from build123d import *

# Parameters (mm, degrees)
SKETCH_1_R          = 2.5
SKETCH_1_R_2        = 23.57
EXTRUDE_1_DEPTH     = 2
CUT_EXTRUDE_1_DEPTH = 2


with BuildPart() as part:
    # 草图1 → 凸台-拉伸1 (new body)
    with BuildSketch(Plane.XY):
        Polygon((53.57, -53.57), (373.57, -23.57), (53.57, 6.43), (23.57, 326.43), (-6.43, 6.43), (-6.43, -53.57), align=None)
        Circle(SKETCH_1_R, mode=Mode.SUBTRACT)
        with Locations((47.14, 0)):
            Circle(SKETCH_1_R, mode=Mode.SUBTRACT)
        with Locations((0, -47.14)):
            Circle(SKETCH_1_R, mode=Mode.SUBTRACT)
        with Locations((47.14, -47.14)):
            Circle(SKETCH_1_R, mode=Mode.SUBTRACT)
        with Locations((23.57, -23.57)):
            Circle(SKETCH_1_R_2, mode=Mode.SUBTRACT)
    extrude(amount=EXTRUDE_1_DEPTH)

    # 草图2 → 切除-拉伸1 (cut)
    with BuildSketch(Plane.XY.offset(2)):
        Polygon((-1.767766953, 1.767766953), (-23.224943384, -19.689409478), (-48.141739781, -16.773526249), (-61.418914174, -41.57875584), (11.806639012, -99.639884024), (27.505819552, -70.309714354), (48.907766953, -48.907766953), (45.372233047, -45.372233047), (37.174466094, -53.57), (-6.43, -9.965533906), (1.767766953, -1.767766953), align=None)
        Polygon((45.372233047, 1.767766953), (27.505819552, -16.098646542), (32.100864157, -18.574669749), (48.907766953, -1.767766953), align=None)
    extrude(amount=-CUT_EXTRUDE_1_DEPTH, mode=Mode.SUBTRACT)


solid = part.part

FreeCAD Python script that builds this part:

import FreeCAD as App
import Part
import Sketcher

V = App.Vector

doc = App.newDocument("Part")
body = doc.addObject("PartDesign::Body", "Body")

# Sketch on XY plane
sketch1 = doc.addObject("Sketcher::SketchObject", "Sketch")
body.addObject(sketch1)
sketch1.AttachmentSupport = (doc.XY_Plane, [""])
sketch1.MapMode = "FlatFace"
sketch1.addGeometry(Part.LineSegment(V(53.6, -53.6, 0), V(373.6, -23.6, 0)), False)
sketch1.addGeometry(Part.LineSegment(V(373.6, -23.6, 0), V(53.6, 6.4, 0)), False)
sketch1.addGeometry(Part.LineSegment(V(53.6, 6.4, 0), V(23.6, 326.4, 0)), False)
sketch1.addGeometry(Part.LineSegment(V(23.6, 326.4, 0), V(-6.4, 6.4, 0)), False)
sketch1.addGeometry(Part.LineSegment(V(-6.4, 6.4, 0), V(-6.4, -53.6, 0)), False)
sketch1.addGeometry(Part.LineSegment(V(-6.4, -53.6, 0), V(53.6, -53.6, 0)), False)
sketch1.addGeometry(Part.Circle(V(0, -47.1, 0), V(0, 0, 1), 2.5), False)
sketch1.addGeometry(Part.Circle(V(47.1, -47.1, 0), V(0, 0, 1), 2.5), False)
sketch1.addGeometry(Part.Circle(V(0, 0, 0), V(0, 0, 1), 2.5), False)
sketch1.addGeometry(Part.Circle(V(23.6, -23.6, 0), V(0, 0, 1), 23.6), False)
sketch1.addGeometry(Part.Circle(V(47.1, 0, 0), V(0, 0, 1), 2.5), False)
sketch1.addConstraint(Sketcher.Constraint("Coincident", 0, 2, 1, 1))
sketch1.addConstraint(Sketcher.Constraint("Coincident", 1, 2, 2, 1))
sketch1.addConstraint(Sketcher.Constraint("Coincident", 2, 2, 3, 1))
sketch1.addConstraint(Sketcher.Constraint("Coincident", 3, 2, 4, 1))
sketch1.addConstraint(Sketcher.Constraint("Coincident", 4, 2, 5, 1))
sketch1.addConstraint(Sketcher.Constraint("Coincident", 5, 2, 0, 1))
sketch1.addConstraint(Sketcher.Constraint("Vertical", 4))
sketch1.addConstraint(Sketcher.Constraint("Horizontal", 5))
sketch1.addConstraint(Sketcher.Constraint("Coincident", 8, 3, -1, 1))
sketch1.addConstraint(Sketcher.Constraint("Equal", 6, 7))
sketch1.addConstraint(Sketcher.Constraint("Equal", 7, 8))
sketch1.addConstraint(Sketcher.Constraint("Equal", 8, 10))
sketch1.addConstraint(Sketcher.Constraint("PointOnObject", 6, 3, -2))
sketch1.addConstraint(Sketcher.Constraint("PointOnObject", 10, 3, -1))
sketch1.addConstraint(Sketcher.Constraint("Perpendicular", 0, 2))
sketch1.addConstraint(Sketcher.Constraint("Perpendicular", 1, 3))
sketch1.addConstraint(Sketcher.Constraint("Horizontal", 6, 3, 7, 3))
sketch1.addConstraint(Sketcher.Constraint("Horizontal", 9, 3, 0, 2))
sketch1.addConstraint(Sketcher.Constraint("Horizontal", 1, 2, 3, 2))
sketch1.addConstraint(Sketcher.Constraint("Vertical", 7, 3, 10, 3))
sketch1.addConstraint(Sketcher.Constraint("Vertical", 9, 3, 2, 2))
sketch1.addConstraint(Sketcher.Constraint("Vertical", 1, 2, 5, 2))
sketch1.addConstraint(Sketcher.Constraint("Equal", 5, 4))
sketch1.addConstraint(Sketcher.Constraint("Equal", 0, 1))
sketch1.addConstraint(Sketcher.Constraint("Diameter", 6, 5.0))
sketch1.addConstraint(Sketcher.Constraint("Diameter", 9, 47.14))
sketch1.addConstraint(Sketcher.Constraint("DistanceX", 5, 1, 5, 2, 60.0))
sketch1.addConstraint(Sketcher.Constraint("DistanceX", 9, 3, 0, 2, 350.0))
sketch1.addConstraint(Sketcher.Constraint("DistanceY", 6, 3, -1, 1, 47.14))
sketch1.addConstraint(Sketcher.Constraint("DistanceX", -1, 1, 7, 3, 47.14))
sketch1.addConstraint(Sketcher.Constraint("DistanceX", -1, 1, 9, 3, 23.57))
sketch1.addConstraint(Sketcher.Constraint("DistanceY", 9, 3, -1, 1, 23.57))
pad1 = doc.addObject("PartDesign::Pad", "Pad")
body.addObject(pad1)
pad1.Profile = sketch1
pad1.Length = 2

# Sketch on XY plane
sketch2 = doc.addObject("Sketcher::SketchObject", "Sketch001")
body.addObject(sketch2)
sketch2.AttachmentSupport = (doc.XY_Plane, [""])
sketch2.MapMode = "FlatFace"
sketch2.AttachmentOffset = App.Placement(V(0, 0, 2), App.Rotation())
sketch2.addGeometry(Part.LineSegment(V(-1.767767, 1.767767, 0), V(-23.224943, -19.689409, 0)), False)
sketch2.addGeometry(Part.LineSegment(V(-23.224943, -19.689409, 0), V(-48.14174, -16.773526, 0)), False)
sketch2.addGeometry(Part.LineSegment(V(-48.14174, -16.773526, 0), V(-61.418914, -41.578756, 0)), False)
sketch2.addGeometry(Part.LineSegment(V(-61.418914, -41.578756, 0), V(11.806639, -99.639884, 0)), False)
sketch2.addGeometry(Part.LineSegment(V(11.806639, -99.639884, 0), V(27.50582, -70.309714, 0)), False)
sketch2.addGeometry(Part.LineSegment(V(27.50582, -70.309714, 0), V(48.907767, -48.907767, 0)), False)
sketch2.addGeometry(Part.LineSegment(V(48.907767, -48.907767, 0), V(45.372233, -45.372233, 0)), False)
sketch2.addGeometry(Part.LineSegment(V(45.372233, -45.372233, 0), V(37.174466, -53.57, 0)), False)
sketch2.addGeometry(Part.LineSegment(V(37.174466, -53.57, 0), V(-6.43, -9.965534, 0)), False)
sketch2.addGeometry(Part.LineSegment(V(-6.43, -9.965534, 0), V(1.767767, -1.767767, 0)), False)
sketch2.addGeometry(Part.LineSegment(V(1.767767, -1.767767, 0), V(-1.767767, 1.767767, 0)), False)
sketch2.addGeometry(Part.LineSegment(V(45.372233, 1.767767, 0), V(27.50582, -16.098647, 0)), False)
sketch2.addGeometry(Part.LineSegment(V(27.50582, -16.098647, 0), V(32.100864, -18.57467, 0)), False)
sketch2.addGeometry(Part.LineSegment(V(32.100864, -18.57467, 0), V(48.907767, -1.767767, 0)), False)
sketch2.addGeometry(Part.LineSegment(V(48.907767, -1.767767, 0), V(45.372233, 1.767767, 0)), False)
sketch2.addConstraint(Sketcher.Constraint("Coincident", 0, 2, 1, 1))
sketch2.addConstraint(Sketcher.Constraint("Coincident", 1, 2, 2, 1))
sketch2.addConstraint(Sketcher.Constraint("Coincident", 2, 2, 3, 1))
sketch2.addConstraint(Sketcher.Constraint("Coincident", 3, 2, 4, 1))
sketch2.addConstraint(Sketcher.Constraint("Coincident", 4, 2, 5, 1))
sketch2.addConstraint(Sketcher.Constraint("Coincident", 5, 2, 6, 1))
sketch2.addConstraint(Sketcher.Constraint("Coincident", 6, 2, 7, 1))
sketch2.addConstraint(Sketcher.Constraint("Coincident", 7, 2, 8, 1))
sketch2.addConstraint(Sketcher.Constraint("Coincident", 8, 2, 9, 1))
sketch2.addConstraint(Sketcher.Constraint("Coincident", 9, 2, 10, 1))
sketch2.addConstraint(Sketcher.Constraint("Coincident", 10, 2, 0, 1))
sketch2.addConstraint(Sketcher.Constraint("Coincident", 11, 2, 12, 1))
sketch2.addConstraint(Sketcher.Constraint("Coincident", 12, 2, 13, 1))
sketch2.addConstraint(Sketcher.Constraint("Coincident", 13, 2, 14, 1))
sketch2.addConstraint(Sketcher.Constraint("Coincident", 14, 2, 11, 1))
sketch2.addConstraint(Sketcher.Constraint("Distance", 6, 5.0))
sketch2.addConstraint(Sketcher.Constraint("Distance", 10, 5.0))
sketch2.addConstraint(Sketcher.Constraint("Distance", 14, 5.0))
sketch2.addConstraint(Sketcher.Constraint("DistanceY", 7, 2, -1, 1, 53.57))
sketch2.addConstraint(Sketcher.Constraint("DistanceX", 8, 2, -1, 1, 6.43))
sketch2.addConstraint(Sketcher.Constraint("DistanceX", 10, 2, 6, 2, 47.14))
sketch2.addConstraint(Sketcher.Constraint("DistanceY", 6, 2, 10, 2, 47.14))
sketch2.addConstraint(Sketcher.Constraint("DistanceY", 5, 2, 13, 2, 47.14))
sketch2.addConstraint(Sketcher.Constraint("DistanceX", 9, 2, 13, 2, 47.14))
sketch2.addConstraint(Sketcher.Constraint("DistanceY", 6, 2, 14, 2, 47.14))
sketch2.addConstraint(Sketcher.Constraint("DistanceX", 7, 2, 5, 2, 11.733301))
sketch2.addConstraint(Sketcher.Constraint("DistanceY", 6, 2, 8, 2, 35.406699))
sketch2.addConstraint(Sketcher.Constraint("DistanceX", 9, 2, 7, 2, 35.406699))
sketch2.addConstraint(Sketcher.Constraint("DistanceX", 12, 2, 7, 2, 5.073602))
sketch2.addConstraint(Sketcher.Constraint("Distance", 0, 30.34503))
sketch2.addConstraint(Sketcher.Constraint("Distance", 1, 25.086832))
sketch2.addConstraint(Sketcher.Constraint("Distance", 2, 28.135081))
sketch2.addConstraint(Sketcher.Constraint("Distance", 3, 93.45093))
sketch2.addConstraint(Sketcher.Constraint("Distance", 4, 33.267448))
sketch2.addConstraint(Sketcher.Constraint("Distance", 13, 23.76855))
sketch2.addConstraint(Sketcher.Constraint("DistanceY", 0, 2, -1, 1, 19.689409))
sketch2.addConstraint(Sketcher.Constraint("DistanceX", 1, 2, -1, 1, 48.14174))
sketch2.addConstraint(Sketcher.Constraint("DistanceX", -1, 1, 3, 2, 11.806639))
sketch2.addConstraint(Sketcher.Constraint("DistanceX", -1, 1, 4, 2, 27.50582))
sketch2.addConstraint(Sketcher.Constraint("DistanceX", -1, 1, 11, 2, 27.50582))
sketch2.addConstraint(Sketcher.Constraint("DistanceY", 12, 2, -1, 1, 18.57467))
sketch2.addConstraint(Sketcher.Constraint("DistanceY", 2, 2, 1, 2, 24.80523))
sketch2.addConstraint(Sketcher.Constraint("DistanceX", 2, 2, 0, 2, 38.193971))
sketch2.addConstraint(Sketcher.Constraint("DistanceX", 0, 2, 5, 2, 72.13271))
sketch2.addConstraint(Sketcher.Constraint("DistanceY", 11, 2, 9, 2, 14.33088))
pocket1 = doc.addObject("PartDesign::Pocket", "Pocket")
body.addObject(pocket1)
pocket1.Profile = sketch2
pocket1.Length = 2

doc.recompute()
